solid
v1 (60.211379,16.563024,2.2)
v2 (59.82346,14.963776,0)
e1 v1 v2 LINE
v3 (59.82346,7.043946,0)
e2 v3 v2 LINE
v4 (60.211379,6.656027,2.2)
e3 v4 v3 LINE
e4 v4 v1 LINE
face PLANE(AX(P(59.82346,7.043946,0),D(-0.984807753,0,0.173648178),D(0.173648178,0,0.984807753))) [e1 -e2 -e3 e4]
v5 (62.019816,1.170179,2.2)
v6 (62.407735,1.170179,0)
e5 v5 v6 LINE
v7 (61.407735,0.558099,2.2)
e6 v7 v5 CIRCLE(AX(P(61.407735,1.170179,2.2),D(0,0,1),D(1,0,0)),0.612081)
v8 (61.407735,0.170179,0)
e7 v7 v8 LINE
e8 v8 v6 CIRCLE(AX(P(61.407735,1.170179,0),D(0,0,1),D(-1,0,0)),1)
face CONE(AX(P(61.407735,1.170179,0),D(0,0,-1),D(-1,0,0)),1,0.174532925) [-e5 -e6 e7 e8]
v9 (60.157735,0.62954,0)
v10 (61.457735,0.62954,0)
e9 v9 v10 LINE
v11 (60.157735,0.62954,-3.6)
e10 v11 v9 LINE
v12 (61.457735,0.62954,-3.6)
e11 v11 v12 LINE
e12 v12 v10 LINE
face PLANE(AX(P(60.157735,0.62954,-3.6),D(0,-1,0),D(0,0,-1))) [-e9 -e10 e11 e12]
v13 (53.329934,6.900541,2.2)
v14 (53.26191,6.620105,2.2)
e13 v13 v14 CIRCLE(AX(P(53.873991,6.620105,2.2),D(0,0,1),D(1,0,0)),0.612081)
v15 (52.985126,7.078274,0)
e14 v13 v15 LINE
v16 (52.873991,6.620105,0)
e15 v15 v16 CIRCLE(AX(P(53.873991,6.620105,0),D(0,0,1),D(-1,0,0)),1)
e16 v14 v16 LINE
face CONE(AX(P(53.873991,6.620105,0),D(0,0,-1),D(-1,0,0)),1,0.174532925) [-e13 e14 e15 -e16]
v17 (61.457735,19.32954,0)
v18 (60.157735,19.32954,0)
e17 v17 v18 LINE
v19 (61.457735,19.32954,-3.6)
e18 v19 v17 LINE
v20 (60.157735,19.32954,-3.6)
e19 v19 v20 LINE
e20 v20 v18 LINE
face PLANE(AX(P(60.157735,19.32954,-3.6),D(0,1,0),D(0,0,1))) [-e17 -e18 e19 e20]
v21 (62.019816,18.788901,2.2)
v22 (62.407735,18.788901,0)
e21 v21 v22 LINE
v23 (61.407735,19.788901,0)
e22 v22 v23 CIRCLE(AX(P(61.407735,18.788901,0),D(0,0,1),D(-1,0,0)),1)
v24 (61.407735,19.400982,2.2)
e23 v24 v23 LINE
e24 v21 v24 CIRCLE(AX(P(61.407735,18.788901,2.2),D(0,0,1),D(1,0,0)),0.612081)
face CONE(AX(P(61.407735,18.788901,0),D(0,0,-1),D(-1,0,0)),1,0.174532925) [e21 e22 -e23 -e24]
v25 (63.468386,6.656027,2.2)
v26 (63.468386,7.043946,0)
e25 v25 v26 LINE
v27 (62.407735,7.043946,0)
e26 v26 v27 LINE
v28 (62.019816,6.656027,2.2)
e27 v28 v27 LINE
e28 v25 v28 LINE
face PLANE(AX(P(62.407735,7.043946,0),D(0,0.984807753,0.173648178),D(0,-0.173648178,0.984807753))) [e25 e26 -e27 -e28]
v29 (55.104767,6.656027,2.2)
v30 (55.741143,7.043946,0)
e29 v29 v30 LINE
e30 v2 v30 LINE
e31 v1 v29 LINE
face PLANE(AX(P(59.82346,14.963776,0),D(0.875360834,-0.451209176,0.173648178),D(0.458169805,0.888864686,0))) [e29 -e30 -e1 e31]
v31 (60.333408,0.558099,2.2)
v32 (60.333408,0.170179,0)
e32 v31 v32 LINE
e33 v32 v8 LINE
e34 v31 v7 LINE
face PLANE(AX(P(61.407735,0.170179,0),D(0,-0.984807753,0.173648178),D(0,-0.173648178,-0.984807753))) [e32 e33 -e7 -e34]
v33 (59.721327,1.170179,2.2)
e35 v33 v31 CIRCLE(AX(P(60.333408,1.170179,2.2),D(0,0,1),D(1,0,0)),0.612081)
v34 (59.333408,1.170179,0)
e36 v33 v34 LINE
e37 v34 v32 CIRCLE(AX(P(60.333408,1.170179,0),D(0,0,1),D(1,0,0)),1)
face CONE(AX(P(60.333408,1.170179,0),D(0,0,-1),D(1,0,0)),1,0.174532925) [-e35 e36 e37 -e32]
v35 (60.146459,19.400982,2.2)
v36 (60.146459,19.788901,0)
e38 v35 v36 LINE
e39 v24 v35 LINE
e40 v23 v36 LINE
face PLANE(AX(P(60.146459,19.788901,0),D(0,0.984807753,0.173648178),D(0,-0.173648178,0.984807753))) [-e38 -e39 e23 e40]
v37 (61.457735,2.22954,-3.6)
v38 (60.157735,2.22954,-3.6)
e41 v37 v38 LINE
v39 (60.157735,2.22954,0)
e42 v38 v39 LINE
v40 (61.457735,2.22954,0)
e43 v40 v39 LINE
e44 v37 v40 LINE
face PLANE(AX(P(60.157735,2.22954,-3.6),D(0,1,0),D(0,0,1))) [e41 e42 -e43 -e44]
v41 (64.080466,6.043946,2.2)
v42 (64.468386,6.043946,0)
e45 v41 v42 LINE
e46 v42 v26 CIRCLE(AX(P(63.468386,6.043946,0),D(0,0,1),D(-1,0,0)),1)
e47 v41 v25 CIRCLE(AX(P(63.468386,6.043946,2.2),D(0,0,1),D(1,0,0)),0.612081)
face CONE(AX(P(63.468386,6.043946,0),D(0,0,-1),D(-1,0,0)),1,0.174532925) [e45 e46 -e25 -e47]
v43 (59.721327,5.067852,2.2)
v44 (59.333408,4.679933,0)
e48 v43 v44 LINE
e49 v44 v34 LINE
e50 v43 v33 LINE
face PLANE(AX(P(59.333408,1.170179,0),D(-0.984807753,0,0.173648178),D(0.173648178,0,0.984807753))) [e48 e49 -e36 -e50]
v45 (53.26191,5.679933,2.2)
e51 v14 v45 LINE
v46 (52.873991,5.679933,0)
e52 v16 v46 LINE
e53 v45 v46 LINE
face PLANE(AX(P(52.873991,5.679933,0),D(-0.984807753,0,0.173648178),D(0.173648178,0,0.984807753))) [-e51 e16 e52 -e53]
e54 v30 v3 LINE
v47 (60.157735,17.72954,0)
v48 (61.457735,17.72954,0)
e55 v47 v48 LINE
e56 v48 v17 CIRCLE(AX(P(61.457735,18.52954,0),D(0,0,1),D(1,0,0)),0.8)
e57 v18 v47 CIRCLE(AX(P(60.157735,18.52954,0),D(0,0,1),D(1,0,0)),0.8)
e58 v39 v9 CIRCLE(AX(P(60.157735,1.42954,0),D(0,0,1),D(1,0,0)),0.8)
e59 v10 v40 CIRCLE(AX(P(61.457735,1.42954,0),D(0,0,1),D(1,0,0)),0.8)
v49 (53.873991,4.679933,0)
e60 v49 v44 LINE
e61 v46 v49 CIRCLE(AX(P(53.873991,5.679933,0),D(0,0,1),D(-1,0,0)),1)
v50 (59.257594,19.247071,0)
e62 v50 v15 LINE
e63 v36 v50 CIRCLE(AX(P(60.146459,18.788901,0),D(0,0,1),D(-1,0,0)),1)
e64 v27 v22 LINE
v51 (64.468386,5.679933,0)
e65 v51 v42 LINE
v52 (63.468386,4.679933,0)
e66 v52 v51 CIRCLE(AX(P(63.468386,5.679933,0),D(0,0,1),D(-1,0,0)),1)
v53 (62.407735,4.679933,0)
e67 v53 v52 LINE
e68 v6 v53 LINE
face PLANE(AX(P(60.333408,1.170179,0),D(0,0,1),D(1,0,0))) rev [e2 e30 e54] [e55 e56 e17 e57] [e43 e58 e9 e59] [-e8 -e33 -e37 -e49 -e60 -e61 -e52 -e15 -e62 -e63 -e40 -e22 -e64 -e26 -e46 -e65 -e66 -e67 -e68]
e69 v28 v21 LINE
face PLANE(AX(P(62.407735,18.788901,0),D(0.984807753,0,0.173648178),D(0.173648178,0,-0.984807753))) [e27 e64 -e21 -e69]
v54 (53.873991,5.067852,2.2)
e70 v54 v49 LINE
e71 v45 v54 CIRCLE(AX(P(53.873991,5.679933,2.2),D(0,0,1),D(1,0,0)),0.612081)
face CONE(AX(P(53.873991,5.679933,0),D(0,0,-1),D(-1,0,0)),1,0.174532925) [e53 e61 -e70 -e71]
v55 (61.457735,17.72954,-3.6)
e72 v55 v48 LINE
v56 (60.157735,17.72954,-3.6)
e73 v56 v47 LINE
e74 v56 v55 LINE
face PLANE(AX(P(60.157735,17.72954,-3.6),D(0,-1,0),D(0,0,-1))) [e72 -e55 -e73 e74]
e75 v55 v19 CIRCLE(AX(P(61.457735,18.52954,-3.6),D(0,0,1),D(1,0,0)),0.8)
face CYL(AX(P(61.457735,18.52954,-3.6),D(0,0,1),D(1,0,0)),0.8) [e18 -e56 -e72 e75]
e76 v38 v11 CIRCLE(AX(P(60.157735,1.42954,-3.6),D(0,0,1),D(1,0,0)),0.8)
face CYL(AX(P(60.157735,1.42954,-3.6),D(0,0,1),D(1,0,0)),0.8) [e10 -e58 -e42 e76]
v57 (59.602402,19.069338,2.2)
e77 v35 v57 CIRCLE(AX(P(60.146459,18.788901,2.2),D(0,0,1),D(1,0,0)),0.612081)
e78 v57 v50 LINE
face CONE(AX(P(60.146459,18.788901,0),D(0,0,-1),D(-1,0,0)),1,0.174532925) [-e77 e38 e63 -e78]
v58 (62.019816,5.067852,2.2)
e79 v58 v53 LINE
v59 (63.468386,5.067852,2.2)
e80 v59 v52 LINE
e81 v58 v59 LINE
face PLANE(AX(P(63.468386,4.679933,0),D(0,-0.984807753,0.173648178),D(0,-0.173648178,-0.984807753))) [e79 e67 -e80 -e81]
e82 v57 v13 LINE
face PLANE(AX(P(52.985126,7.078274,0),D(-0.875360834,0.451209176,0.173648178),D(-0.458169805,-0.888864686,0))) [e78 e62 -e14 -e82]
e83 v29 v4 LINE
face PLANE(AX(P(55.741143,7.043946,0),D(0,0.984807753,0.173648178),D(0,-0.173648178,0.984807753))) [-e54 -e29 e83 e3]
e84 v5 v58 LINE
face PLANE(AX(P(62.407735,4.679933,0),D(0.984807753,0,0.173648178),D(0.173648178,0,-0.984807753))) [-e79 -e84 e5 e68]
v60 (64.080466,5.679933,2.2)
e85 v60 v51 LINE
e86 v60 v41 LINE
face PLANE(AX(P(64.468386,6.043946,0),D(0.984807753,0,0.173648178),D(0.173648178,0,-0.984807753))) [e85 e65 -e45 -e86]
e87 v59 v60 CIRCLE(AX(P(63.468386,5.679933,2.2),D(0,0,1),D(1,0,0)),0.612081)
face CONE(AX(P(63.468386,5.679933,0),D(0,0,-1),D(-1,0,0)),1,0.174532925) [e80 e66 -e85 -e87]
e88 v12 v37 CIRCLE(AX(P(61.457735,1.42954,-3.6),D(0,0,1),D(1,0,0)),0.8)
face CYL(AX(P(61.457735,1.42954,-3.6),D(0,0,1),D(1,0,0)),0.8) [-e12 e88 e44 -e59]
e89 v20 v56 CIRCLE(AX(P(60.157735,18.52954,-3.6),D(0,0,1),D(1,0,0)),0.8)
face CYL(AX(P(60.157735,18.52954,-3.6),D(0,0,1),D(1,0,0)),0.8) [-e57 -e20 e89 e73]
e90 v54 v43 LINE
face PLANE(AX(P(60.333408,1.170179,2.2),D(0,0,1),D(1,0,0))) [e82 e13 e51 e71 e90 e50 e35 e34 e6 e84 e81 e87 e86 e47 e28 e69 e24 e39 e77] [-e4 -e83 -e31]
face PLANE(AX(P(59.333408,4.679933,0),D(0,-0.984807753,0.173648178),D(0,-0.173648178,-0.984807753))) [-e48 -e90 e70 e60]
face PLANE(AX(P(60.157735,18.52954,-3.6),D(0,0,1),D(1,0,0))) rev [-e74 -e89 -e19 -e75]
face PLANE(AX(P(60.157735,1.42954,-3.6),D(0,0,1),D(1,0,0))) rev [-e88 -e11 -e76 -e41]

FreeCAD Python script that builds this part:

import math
import FreeCAD as App
import Part
import Sketcher


def faces_at(feature, points):
    """Names of the faces that lie closest to the given points."""
    faces = feature.Shape.Faces
    near = lambda p: min(range(len(faces)), key=lambda i: faces[i].distToShape(Part.Vertex(*p))[0])
    return sorted({f"Face{near(p) + 1}" for p in points})


def add_polygon(sketch, points):
    """Adds a closed chain of lines whose ends are joined by coincident constraints."""
    first, n = sketch.GeometryCount, len(points)
    for a, b in zip(points, points[1:] + points[:1]):
        sketch.addGeometry(Part.LineSegment(App.Vector(*a, 0), App.Vector(*b, 0)), False)
    for i in range(n):
        sketch.addConstraint(Sketcher.Constraint("Coincident", first + i, 2, first + (i + 1) % n, 1))

doc = App.newDocument("Part")
params = doc.addObject("Spreadsheet::Sheet", "Params")
for row, (alias, value) in enumerate([
    ("sketch1_radius", "1 mm"),
    ("pad1_length", "2.2 mm"),
    ("draft_angle", "10 deg"),
    ("sketch2_radius", "0.8 mm"),
    ("sketch2_width", "1.3 mm"),
    ("pad2_length", "3.6 mm"),
], start=1):
    params.set(f"A{row}", alias)
    params.set(f"B{row}", "=" + value)
    params.setAlias(f"B{row}", alias)

body = doc.addObject("PartDesign::Body", "Body")

# Sketch on XY plane
sketch1 = body.newObject("Sketcher::SketchObject", "Sketch")
sketch1.AttachmentSupport = (doc.getObject("XY_Plane"), [""])
sketch1.MapMode = "FlatFace"
sketch1.addGeometry(Part.ArcOfCircle(Part.Circle(App.Vector(60.33, 1.17, 0), App.Vector(0, 0, 1), 1), math.radians(-180), math.radians(-90)), False)  # 0
sketch1.addGeometry(Part.LineSegment(App.Vector(60.33, 0.17, 0), App.Vector(61.41, 0.17, 0)), False)  # 1
sketch1.addGeometry(Part.ArcOfCircle(Part.Circle(App.Vector(61.41, 1.17, 0), App.Vector(0, 0, 1), 1), math.radians(-90), math.radians(0)), False)  # 2
sketch1.addGeometry(Part.LineSegment(App.Vector(62.41, 1.17, 0), App.Vector(62.41, 4.68, 0)), False)  # 3
sketch1.addGeometry(Part.LineSegment(App.Vector(62.41, 4.68, 0), App.Vector(63.47, 4.68, 0)), False)  # 4
sketch1.addGeometry(Part.ArcOfCircle(Part.Circle(App.Vector(63.47, 5.68, 0), App.Vector(0, 0, 1), 1), math.radians(-90), math.radians(0)), False)  # 5
sketch1.addGeometry(Part.LineSegment(App.Vector(64.47, 5.68, 0), App.Vector(64.47, 6.04, 0)), False)  # 6
sketch1.addGeometry(Part.ArcOfCircle(Part.Circle(App.Vector(63.47, 6.04, 0), App.Vector(0, 0, 1), 1), math.radians(0), math.radians(90)), False)  # 7
sketch1.addGeometry(Part.LineSegment(App.Vector(63.47, 7.04, 0), App.Vector(62.41, 7.04, 0)), False)  # 8
sketch1.addGeometry(Part.LineSegment(App.Vector(62.41, 7.04, 0), App.Vector(62.41, 18.79, 0)), False)  # 9
sketch1.addGeometry(Part.ArcOfCircle(Part.Circle(App.Vector(61.41, 18.79, 0), App.Vector(0, 0, 1), 1), math.radians(0), math.radians(90)), False)  # 10
sketch1.addGeometry(Part.LineSegment(App.Vector(61.41, 19.79, 0), App.Vector(60.15, 19.79, 0)), False)  # 11
sketch1.addGeometry(Part.ArcOfCircle(Part.Circle(App.Vector(60.15, 18.79, 0), App.Vector(0, 0, 1), 1), math.radians(90), math.radians(153)), False)  # 12
sketch1.addGeometry(Part.LineSegment(App.Vector(59.26, 19.25, 0), App.Vector(52.99, 7.08, 0)), False)  # 13
sketch1.addGeometry(Part.ArcOfCircle(Part.Circle(App.Vector(53.87, 6.62, 0), App.Vector(0, 0, 1), 1), math.radians(153), math.radians(180)), False)  # 14
sketch1.addGeometry(Part.LineSegment(App.Vector(52.87, 6.62, 0), App.Vector(52.87, 5.68, 0)), False)  # 15
sketch1.addGeometry(Part.ArcOfCircle(Part.Circle(App.Vector(53.87, 5.68, 0), App.Vector(0, 0, 1), 1), math.radians(-180), math.radians(-90)), False)  # 16
sketch1.addGeometry(Part.LineSegment(App.Vector(53.87, 4.68, 0), App.Vector(59.33, 4.68, 0)), False)  # 17
sketch1.addGeometry(Part.LineSegment(App.Vector(59.33, 4.68, 0), App.Vector(59.33, 1.17, 0)), False)  # 18
add_polygon(sketch1, [(59.82, 14.96), (59.82, 7.04), (55.74, 7.04)])  # lines 19-21
sketch1.addConstraint(Sketcher.Constraint("Tangent", 0, 2, 1, 1))
sketch1.addConstraint(Sketcher.Constraint("Tangent", 1, 2, 2, 1))
sketch1.addConstraint(Sketcher.Constraint("Tangent", 2, 2, 3, 1))
sketch1.addConstraint(Sketcher.Constraint("Coincident", 3, 2, 4, 1))
sketch1.addConstraint(Sketcher.Constraint("Tangent", 4, 2, 5, 1))
sketch1.addConstraint(Sketcher.Constraint("Tangent", 5, 2, 6, 1))
sketch1.addConstraint(Sketcher.Constraint("Tangent", 6, 2, 7, 1))
sketch1.addConstraint(Sketcher.Constraint("Tangent", 7, 2, 8, 1))
sketch1.addConstraint(Sketcher.Constraint("Coincident", 8, 2, 9, 1))
sketch1.addConstraint(Sketcher.Constraint("Tangent", 9, 2, 10, 1))
sketch1.addConstraint(Sketcher.Constraint("Tangent", 10, 2, 11, 1))
sketch1.addConstraint(Sketcher.Constraint("Tangent", 11, 2, 12, 1))
sketch1.addConstraint(Sketcher.Constraint("Tangent", 12, 2, 13, 1))
sketch1.addConstraint(Sketcher.Constraint("Tangent", 13, 2, 14, 1))
sketch1.addConstraint(Sketcher.Constraint("Tangent", 14, 2, 15, 1))
sketch1.addConstraint(Sketcher.Constraint("Tangent", 15, 2, 16, 1))
sketch1.addConstraint(Sketcher.Constraint("Tangent", 16, 2, 17, 1))
sketch1.addConstraint(Sketcher.Constraint("Coincident", 17, 2, 18, 1))
sketch1.addConstraint(Sketcher.Constraint("Tangent", 18, 2, 0, 1))
sketch1.addConstraint(Sketcher.Constraint("Horizontal", 1))
sketch1.addConstraint(Sketcher.Constraint("Vertical", 3))
sketch1.addConstraint(Sketcher.Constraint("Horizontal", 4))
sketch1.addConstraint(Sketcher.Constraint("Vertical", 6))
sketch1.addConstraint(Sketcher.Constraint("Horizontal", 8))
sketch1.addConstraint(Sketcher.Constraint("Vertical", 9))
sketch1.addConstraint(Sketcher.Constraint("Horizontal", 11))
sketch1.addConstraint(Sketcher.Constraint("Vertical", 15))
sketch1.addConstraint(Sketcher.Constraint("Horizontal", 17))
sketch1.addConstraint(Sketcher.Constraint("Vertical", 18))
sketch1.addConstraint(Sketcher.Constraint("Vertical", 19))
sketch1.addConstraint(Sketcher.Constraint("Horizontal", 20))
sketch1.addConstraint(Sketcher.Constraint("Equal", 0, 2))
sketch1.addConstraint(Sketcher.Constraint("Equal", 2, 5))
sketch1.addConstraint(Sketcher.Constraint("Equal", 5, 7))
sketch1.addConstraint(Sketcher.Constraint("Equal", 7, 10))
sketch1.addConstraint(Sketcher.Constraint("Equal", 10, 12))
sketch1.addConstraint(Sketcher.Constraint("Equal", 12, 14))
sketch1.addConstraint(Sketcher.Constraint("Equal", 14, 16))
sketch1.addConstraint(Sketcher.Constraint("Parallel", 13, 21))
sketch1.addConstraint(Sketcher.Constraint("Horizontal", 5, 3, 16, 3))
sketch1.addConstraint(Sketcher.Constraint("Horizontal", 8, 2, 19, 2))
sketch1.addConstraint(Sketcher.Constraint("Vertical", 2, 3, 10, 3))
sketch1.addConstraint(Sketcher.Constraint("Radius", 0, 1.0))
sketch1.addConstraint(Sketcher.Constraint("DistanceX", 21, 2, 12, 3, 0.322999))
sketch1.addConstraint(Sketcher.Constraint("DistanceX", 4, 1, 4, 2, 1.06065))
sketch1.addConstraint(Sketcher.Constraint("DistanceY", 15, 2, 15, 1, 0.940172))
sketch1.addConstraint(Sketcher.Constraint("DistanceY", 19, 2, 19, 1, 7.91983))
sketch1.addConstraint(Sketcher.Constraint("DistanceY", -1, 1, 10, 3, 18.788901))
sketch1.addConstraint(Sketcher.Constraint("Distance", 13, 13.690269))
sketch1.addConstraint(Sketcher.Constraint("Distance", 21, 8.910051))
sketch1.addConstraint(Sketcher.Constraint("DistanceX", 1, 1, 1, 2, 1.074327))
sketch1.addConstraint(Sketcher.Constraint("DistanceX", 11, 2, 11, 1, 1.261276))
sketch1.addConstraint(Sketcher.Constraint("DistanceY", 3, 1, 3, 2, 3.509753))
sketch1.addConstraint(Sketcher.Constraint("DistanceY", 6, 1, 6, 2, 0.364013))
sketch1.addConstraint(Sketcher.Constraint("DistanceX", -1, 1, 0, 3, 60.333408))
sketch1.setExpression("Constraints[45]", "Params.sketch1_radius")
pad1 = body.newObject("PartDesign::Pad", "Pad")
pad1.Profile = sketch1
pad1.setExpression("Length", "Params.pad1_length")
doc.recompute()

draft = body.newObject("PartDesign::Draft", "Draft")
draft.Base = (pad1, faces_at(pad1, [
    (60.777, 19.789, 1.1),
    (59.823, 11.004, 1.1),
    (57.782, 11.004, 1.1),
    (57.782, 7.044, 1.1),
    (62.408, 12.916, 1.1),
    (62.938, 7.044, 1.1),
    (64.175, 6.751, 1.1),
    (64.468, 5.862, 1.1),
    (64.175, 4.973, 1.1),
    (62.938, 4.68, 1.1),
    (62.408, 2.925, 1.1),
    (62.115, 0.463, 1.1),
    (60.871, 0.17, 1.1),
    (59.626, 0.463, 1.1),
    (59.333, 2.925, 1.1),
    (56.604, 4.68, 1.1),
    (53.167, 4.973, 1.1),
    (52.874, 6.15, 1.1),
    (52.902, 6.856, 1.1),
    (56.121, 13.163, 1.1),
    (59.626, 19.643, 1.1),
    (62.115, 19.496, 1.1),
]))
draft.NeutralPlane = (doc.getObject("XY_Plane"), [""])
draft.setExpression("Angle", "Params.draft_angle")
draft.Reversed = False

# Sketch on XY plane
sketch2 = body.newObject("Sketcher::SketchObject", "Sketch001")
sketch2.AttachmentSupport = (doc.getObject("XY_Plane"), [""])
sketch2.MapMode = "FlatFace"
sketch2.addGeometry(Part.LineSegment(App.Vector(61.5, 19.3, 0), App.Vector(60.2, 19.3, 0)), False)
sketch2.addGeometry(Part.ArcOfCircle(Part.Circle(App.Vector(60.2, 18.5, 0), App.Vector(0, 0, 1), 0.8), math.radians(90), math.radians(270)), False)
sketch2.addGeometry(Part.LineSegment(App.Vector(60.2, 17.7, 0), App.Vector(61.5, 17.7, 0)), False)
sketch2.addGeometry(Part.ArcOfCircle(Part.Circle(App.Vector(61.5, 18.5, 0), App.Vector(0, 0, 1), 0.8), math.radians(-90), math.radians(90)), False)
sketch2.addGeometry(Part.LineSegment(App.Vector(61.5, 2.2, 0), App.Vector(60.2, 2.2, 0)), False)
sketch2.addGeometry(Part.ArcOfCircle(Part.Circle(App.Vector(60.2, 1.4, 0), App.Vector(0, 0, 1), 0.8), math.radians(90), math.radians(270)), False)
sketch2.addGeometry(Part.LineSegment(App.Vector(60.2, 0.6, 0), App.Vector(61.5, 0.6, 0)), False)
sketch2.addGeometry(Part.ArcOfCircle(Part.Circle(App.Vector(61.5, 1.4, 0), App.Vector(0, 0, 1), 0.8), math.radians(-90), math.radians(90)), False)
sketch2.addConstraint(Sketcher.Constraint("Tangent", 0, 2, 1, 1))
sketch2.addConstraint(Sketcher.Constraint("Tangent", 1, 2, 2, 1))
sketch2.addConstraint(Sketcher.Constraint("Tangent", 2, 2, 3, 1))
sketch2.addConstraint(Sketcher.Constraint("Tangent", 3, 2, 0, 1))
sketch2.addConstraint(Sketcher.Constraint("Tangent", 4, 2, 5, 1))
sketch2.addConstraint(Sketcher.Constraint("Tangent", 5, 2, 6, 1))
sketch2.addConstraint(Sketcher.Constraint("Tangent", 6, 2, 7, 1))
sketch2.addConstraint(Sketcher.Constraint("Tangent", 7, 2, 4, 1))
sketch2.addConstraint(Sketcher.Constraint("Horizontal", 0))
sketch2.addConstraint(Sketcher.Constraint("Horizontal", 2))
sketch2.addConstraint(Sketcher.Constraint("Horizontal", 4))
sketch2.addConstraint(Sketcher.Constraint("Horizontal", 6))
sketch2.addConstraint(Sketcher.Constraint("Equal", 3, 5))
sketch2.addConstraint(Sketcher.Constraint("Vertical", 1, 3, 5, 3))
sketch2.addConstraint(Sketcher.Constraint("Vertical", 3, 3, 7, 3))
sketch2.addConstraint(Sketcher.Constraint("Radius", 1, 0.8))
sketch2.addConstraint(Sketcher.Constraint("DistanceX", 0, 2, 0, 1, 1.3))
sketch2.addConstraint(Sketcher.Constraint("DistanceY", 5, 3, 1, 3, 17.1))
sketch2.addConstraint(Sketcher.Constraint("DistanceY", -1, 1, 1, 3, 18.52954))
sketch2.addConstraint(Sketcher.Constraint("DistanceX", -1, 1, 1, 3, 60.157735))
sketch2.setExpression("Constraints[15]", "Params.sketch2_radius")
sketch2.setExpression("Constraints[16]", "Params.sketch2_width")
pad2 = body.newObject("PartDesign::Pad", "Pad001")
pad2.Profile = sketch2
pad2.setExpression("Length", "Params.pad2_length")
pad2.Reversed = True

doc.recompute()
